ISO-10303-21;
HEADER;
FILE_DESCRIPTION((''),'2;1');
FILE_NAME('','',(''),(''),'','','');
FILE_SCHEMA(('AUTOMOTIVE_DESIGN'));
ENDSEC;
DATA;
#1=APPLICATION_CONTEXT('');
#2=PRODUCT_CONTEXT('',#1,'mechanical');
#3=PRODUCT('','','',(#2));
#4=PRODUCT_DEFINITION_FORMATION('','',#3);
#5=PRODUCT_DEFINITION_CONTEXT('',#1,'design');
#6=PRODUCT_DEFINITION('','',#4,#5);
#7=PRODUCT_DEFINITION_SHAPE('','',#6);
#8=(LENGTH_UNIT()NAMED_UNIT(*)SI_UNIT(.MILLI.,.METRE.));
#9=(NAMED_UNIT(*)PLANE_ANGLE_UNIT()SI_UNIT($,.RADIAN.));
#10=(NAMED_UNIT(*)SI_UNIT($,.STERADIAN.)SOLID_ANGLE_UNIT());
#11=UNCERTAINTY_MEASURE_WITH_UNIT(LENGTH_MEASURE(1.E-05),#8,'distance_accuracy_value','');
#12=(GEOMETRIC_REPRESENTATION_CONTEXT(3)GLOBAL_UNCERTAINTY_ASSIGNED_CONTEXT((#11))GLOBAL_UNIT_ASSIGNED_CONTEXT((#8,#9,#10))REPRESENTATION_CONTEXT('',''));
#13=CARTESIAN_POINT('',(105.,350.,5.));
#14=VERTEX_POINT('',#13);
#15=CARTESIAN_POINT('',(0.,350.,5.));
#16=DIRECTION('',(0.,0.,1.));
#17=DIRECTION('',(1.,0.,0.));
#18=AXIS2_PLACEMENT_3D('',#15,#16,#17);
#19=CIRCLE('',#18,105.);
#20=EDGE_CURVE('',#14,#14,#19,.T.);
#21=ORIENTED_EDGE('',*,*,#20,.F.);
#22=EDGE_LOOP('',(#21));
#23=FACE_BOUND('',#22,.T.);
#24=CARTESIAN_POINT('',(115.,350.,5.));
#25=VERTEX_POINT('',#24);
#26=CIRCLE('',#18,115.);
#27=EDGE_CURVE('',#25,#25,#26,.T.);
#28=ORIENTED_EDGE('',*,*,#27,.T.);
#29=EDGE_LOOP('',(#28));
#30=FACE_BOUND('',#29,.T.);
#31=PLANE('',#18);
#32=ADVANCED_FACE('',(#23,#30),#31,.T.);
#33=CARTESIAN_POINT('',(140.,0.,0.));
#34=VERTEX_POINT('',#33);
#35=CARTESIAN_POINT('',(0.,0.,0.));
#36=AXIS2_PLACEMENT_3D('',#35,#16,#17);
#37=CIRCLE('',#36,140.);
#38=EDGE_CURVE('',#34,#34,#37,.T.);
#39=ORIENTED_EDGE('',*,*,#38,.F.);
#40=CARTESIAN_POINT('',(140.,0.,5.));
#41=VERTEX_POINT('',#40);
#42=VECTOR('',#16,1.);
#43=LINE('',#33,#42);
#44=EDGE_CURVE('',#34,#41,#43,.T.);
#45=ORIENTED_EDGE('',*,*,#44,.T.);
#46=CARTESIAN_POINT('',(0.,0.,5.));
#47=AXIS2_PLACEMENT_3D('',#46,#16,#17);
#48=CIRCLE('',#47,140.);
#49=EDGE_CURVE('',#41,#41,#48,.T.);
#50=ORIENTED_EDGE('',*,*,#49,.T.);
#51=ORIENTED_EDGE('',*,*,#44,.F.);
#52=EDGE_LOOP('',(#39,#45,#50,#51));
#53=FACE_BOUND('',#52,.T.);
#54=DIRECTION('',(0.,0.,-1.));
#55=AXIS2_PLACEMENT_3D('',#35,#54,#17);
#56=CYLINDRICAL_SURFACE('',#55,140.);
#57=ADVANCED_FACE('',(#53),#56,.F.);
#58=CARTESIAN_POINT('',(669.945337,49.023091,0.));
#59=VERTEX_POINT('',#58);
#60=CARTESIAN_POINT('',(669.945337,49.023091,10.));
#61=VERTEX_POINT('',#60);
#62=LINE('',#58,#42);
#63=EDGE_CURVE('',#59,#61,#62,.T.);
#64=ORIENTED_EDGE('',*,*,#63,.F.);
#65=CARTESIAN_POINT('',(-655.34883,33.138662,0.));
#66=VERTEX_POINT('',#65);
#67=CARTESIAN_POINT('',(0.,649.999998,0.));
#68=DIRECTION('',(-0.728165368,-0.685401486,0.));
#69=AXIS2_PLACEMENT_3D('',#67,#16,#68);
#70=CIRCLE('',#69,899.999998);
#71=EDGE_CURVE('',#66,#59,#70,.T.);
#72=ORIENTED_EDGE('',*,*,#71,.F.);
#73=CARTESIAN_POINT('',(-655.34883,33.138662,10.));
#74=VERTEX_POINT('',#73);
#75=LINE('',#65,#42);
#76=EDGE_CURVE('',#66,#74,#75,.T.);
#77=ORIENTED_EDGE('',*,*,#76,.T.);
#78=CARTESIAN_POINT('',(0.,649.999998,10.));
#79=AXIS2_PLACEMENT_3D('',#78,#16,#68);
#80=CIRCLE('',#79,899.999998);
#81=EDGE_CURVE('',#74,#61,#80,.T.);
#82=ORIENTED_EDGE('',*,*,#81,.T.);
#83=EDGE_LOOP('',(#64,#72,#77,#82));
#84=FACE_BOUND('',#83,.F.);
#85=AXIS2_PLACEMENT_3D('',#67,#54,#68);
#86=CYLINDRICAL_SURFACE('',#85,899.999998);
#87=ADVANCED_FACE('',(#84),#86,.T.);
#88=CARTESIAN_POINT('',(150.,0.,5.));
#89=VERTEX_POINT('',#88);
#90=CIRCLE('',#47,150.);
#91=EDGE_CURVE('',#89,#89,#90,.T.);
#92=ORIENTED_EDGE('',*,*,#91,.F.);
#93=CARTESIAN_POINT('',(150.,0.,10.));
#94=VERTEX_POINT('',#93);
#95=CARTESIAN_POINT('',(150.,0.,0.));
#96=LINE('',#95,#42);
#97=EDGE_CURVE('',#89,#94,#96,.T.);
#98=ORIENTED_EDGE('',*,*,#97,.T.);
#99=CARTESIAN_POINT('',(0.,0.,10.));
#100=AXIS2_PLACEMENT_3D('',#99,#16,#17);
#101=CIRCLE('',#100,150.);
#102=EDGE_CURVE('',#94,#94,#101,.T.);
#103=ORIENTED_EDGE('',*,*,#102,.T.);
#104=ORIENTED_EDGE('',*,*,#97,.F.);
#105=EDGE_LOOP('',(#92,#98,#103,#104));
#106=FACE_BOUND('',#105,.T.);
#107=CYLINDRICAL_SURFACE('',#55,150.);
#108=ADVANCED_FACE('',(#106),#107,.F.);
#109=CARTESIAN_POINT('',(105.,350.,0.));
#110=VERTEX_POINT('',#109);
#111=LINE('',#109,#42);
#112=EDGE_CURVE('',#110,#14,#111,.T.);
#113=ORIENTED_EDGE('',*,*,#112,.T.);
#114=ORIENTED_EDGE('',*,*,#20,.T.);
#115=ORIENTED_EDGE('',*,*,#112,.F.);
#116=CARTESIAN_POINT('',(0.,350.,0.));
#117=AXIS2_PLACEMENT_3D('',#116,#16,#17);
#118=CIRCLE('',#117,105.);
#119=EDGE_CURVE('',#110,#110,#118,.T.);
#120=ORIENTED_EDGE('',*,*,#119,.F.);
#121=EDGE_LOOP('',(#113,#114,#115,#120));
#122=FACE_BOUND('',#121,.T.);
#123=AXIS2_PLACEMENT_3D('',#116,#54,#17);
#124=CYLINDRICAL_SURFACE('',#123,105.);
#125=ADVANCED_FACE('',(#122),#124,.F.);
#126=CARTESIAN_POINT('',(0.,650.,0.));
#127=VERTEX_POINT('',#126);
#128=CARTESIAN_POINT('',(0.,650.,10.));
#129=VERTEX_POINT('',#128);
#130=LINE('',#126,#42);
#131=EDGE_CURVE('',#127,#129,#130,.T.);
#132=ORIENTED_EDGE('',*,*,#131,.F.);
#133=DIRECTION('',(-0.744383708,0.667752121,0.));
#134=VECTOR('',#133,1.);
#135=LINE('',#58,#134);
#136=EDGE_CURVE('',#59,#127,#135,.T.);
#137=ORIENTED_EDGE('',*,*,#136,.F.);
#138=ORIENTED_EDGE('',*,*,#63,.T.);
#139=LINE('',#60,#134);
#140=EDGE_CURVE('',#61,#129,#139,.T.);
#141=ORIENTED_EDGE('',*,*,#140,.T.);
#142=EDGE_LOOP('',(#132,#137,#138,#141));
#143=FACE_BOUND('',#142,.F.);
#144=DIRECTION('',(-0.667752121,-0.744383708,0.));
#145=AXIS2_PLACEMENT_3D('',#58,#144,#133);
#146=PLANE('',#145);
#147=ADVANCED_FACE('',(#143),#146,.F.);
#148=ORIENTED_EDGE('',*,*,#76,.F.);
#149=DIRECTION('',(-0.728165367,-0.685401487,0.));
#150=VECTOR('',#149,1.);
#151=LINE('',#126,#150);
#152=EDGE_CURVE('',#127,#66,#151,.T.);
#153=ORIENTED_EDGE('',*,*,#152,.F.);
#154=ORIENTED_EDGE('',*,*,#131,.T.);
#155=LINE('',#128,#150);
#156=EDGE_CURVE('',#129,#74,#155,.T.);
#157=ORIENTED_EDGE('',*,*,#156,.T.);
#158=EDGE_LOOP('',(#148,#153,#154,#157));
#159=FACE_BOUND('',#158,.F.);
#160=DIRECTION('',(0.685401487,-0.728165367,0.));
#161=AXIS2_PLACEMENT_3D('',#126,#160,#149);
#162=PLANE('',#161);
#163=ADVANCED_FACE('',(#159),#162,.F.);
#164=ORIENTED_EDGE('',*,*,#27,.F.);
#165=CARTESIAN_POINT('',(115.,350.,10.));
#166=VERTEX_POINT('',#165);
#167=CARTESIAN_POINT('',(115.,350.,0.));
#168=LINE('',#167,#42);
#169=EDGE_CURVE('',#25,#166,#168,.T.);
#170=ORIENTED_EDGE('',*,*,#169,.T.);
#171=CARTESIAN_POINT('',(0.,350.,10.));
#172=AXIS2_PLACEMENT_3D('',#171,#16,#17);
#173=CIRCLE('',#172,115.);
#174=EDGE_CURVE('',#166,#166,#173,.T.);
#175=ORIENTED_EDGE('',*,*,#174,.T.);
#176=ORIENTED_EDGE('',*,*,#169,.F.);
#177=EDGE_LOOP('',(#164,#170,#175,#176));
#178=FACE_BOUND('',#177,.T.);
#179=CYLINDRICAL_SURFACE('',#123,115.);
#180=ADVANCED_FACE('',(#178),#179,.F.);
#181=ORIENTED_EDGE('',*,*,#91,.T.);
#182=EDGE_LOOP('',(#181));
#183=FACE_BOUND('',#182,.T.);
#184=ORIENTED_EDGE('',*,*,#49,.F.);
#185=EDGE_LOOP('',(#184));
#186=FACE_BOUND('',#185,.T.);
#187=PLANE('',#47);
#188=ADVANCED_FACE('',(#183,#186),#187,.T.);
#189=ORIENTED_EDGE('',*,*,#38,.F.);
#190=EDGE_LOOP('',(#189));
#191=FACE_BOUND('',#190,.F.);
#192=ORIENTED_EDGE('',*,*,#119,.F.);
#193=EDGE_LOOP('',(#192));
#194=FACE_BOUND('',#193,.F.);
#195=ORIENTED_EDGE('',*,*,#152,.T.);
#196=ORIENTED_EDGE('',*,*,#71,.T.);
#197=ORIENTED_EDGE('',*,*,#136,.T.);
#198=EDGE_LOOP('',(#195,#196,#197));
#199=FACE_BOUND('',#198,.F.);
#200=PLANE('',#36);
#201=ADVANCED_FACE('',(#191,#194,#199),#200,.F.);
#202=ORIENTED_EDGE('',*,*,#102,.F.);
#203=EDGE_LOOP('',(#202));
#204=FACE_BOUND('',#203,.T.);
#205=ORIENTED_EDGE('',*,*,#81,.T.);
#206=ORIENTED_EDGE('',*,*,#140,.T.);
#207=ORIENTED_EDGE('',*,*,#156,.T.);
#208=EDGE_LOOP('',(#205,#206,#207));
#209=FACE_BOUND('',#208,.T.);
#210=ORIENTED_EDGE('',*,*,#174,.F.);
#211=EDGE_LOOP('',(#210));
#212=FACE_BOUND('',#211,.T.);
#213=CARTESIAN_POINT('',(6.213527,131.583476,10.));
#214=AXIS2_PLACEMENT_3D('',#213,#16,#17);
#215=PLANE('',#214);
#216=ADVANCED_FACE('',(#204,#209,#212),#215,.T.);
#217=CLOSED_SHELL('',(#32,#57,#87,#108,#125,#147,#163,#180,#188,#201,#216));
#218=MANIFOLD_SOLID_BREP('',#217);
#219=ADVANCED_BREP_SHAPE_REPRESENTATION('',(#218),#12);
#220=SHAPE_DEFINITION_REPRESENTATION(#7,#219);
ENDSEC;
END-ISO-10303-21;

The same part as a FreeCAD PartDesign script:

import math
import FreeCAD as App
import Part
import Sketcher
Q = App.Units.Quantity

doc = App.newDocument("Part")
body = doc.addObject("PartDesign::Body", "Body")

# Sketch on XY plane
sketch1 = body.newObject("Sketcher::SketchObject", "Sketch")
sketch1.AttachmentSupport = (doc.getObject("XY_Plane"), [""])
sketch1.MapMode = "FlatFace"
sketch1.addGeometry([
    Part.ArcOfCircle(Part.Circle(App.Vector(0, 650, 0), App.Vector(0, 0, 1), 900), math.radians(-137), math.radians(-42)),  # 0
    Part.LineSegment(App.Vector(670, 49, 0), App.Vector(0, 650, 0)),  # 1
    Part.LineSegment(App.Vector(0, 650, 0), App.Vector(-655, 33, 0)),  # 2
    Part.Circle(App.Vector(0, 0, 0), App.Vector(0, 0, 1), 150),  # 3
    Part.Circle(App.Vector(0, 350, 0), App.Vector(0, 0, 1), 115),  # 4
], False)
sketch1.addConstraint([
    Sketcher.Constraint("Coincident", 0, 2, 1, 1),
    Sketcher.Constraint("Coincident", 1, 2, 2, 1),
    Sketcher.Constraint("Coincident", 2, 2, 0, 1),
    Sketcher.Constraint("Coincident", 3, 3, -1, 1),
    Sketcher.Constraint("Coincident", 1, 2, 0, 3),
    Sketcher.Constraint("PointOnObject", 0, 3, -2),
    Sketcher.Constraint("PointOnObject", 4, 3, -2),
    Sketcher.Constraint("Diameter", 3, 300.0),
    Sketcher.Constraint("Diameter", 4, 230.0),
    Sketcher.Constraint("Radius", 0, 899.999998),
    Sketcher.Constraint("DistanceY", -1, 1, 4, 3, 350.0),
    Sketcher.Constraint("DistanceY", -1, 1, 1, 2, 650.0),
    Sketcher.Constraint("DistanceX", 2, 2, -1, 1, 655.34883),
    Sketcher.Constraint("Angle", 1, Q("138.106191 deg")),
])
pad1 = body.newObject("PartDesign::Pad", "Pad")
pad1.Profile = sketch1
pad1.Length = 10

# Sketch on XY plane
sketch2 = body.newObject("Sketcher::SketchObject", "Sketch001")
sketch2.AttachmentSupport = (doc.getObject("XY_Plane"), [""])
sketch2.MapMode = "FlatFace"
sketch2.addGeometry([
    Part.Circle(App.Vector(0, 0, 0), App.Vector(0, 0, 1), 150),
    Part.Circle(App.Vector(0, 0, 0), App.Vector(0, 0, 1), 140),
    Part.Circle(App.Vector(0, 350, 0), App.Vector(0, 0, 1), 115),
    Part.Circle(App.Vector(0, 350, 0), App.Vector(0, 0, 1), 105),
], False)
sketch2.addConstraint([
    Sketcher.Constraint("Coincident", 0, 3, -1, 1),
    Sketcher.Constraint("Coincident", 1, 3, -1, 1),
    Sketcher.Constraint("Coincident", 3, 3, 2, 3),
    Sketcher.Constraint("PointOnObject", 2, 3, -2),
    Sketcher.Constraint("Diameter", 0, 300.0),
    Sketcher.Constraint("Diameter", 1, 280.0),
    Sketcher.Constraint("Diameter", 2, 230.0),
    Sketcher.Constraint("Diameter", 3, 210.0),
    Sketcher.Constraint("DistanceY", -1, 1, 2, 3, 350.0),
])
pad2 = body.newObject("PartDesign::Pad", "Pad001")
pad2.Profile = sketch2
pad2.Length = 5

doc.recompute()
